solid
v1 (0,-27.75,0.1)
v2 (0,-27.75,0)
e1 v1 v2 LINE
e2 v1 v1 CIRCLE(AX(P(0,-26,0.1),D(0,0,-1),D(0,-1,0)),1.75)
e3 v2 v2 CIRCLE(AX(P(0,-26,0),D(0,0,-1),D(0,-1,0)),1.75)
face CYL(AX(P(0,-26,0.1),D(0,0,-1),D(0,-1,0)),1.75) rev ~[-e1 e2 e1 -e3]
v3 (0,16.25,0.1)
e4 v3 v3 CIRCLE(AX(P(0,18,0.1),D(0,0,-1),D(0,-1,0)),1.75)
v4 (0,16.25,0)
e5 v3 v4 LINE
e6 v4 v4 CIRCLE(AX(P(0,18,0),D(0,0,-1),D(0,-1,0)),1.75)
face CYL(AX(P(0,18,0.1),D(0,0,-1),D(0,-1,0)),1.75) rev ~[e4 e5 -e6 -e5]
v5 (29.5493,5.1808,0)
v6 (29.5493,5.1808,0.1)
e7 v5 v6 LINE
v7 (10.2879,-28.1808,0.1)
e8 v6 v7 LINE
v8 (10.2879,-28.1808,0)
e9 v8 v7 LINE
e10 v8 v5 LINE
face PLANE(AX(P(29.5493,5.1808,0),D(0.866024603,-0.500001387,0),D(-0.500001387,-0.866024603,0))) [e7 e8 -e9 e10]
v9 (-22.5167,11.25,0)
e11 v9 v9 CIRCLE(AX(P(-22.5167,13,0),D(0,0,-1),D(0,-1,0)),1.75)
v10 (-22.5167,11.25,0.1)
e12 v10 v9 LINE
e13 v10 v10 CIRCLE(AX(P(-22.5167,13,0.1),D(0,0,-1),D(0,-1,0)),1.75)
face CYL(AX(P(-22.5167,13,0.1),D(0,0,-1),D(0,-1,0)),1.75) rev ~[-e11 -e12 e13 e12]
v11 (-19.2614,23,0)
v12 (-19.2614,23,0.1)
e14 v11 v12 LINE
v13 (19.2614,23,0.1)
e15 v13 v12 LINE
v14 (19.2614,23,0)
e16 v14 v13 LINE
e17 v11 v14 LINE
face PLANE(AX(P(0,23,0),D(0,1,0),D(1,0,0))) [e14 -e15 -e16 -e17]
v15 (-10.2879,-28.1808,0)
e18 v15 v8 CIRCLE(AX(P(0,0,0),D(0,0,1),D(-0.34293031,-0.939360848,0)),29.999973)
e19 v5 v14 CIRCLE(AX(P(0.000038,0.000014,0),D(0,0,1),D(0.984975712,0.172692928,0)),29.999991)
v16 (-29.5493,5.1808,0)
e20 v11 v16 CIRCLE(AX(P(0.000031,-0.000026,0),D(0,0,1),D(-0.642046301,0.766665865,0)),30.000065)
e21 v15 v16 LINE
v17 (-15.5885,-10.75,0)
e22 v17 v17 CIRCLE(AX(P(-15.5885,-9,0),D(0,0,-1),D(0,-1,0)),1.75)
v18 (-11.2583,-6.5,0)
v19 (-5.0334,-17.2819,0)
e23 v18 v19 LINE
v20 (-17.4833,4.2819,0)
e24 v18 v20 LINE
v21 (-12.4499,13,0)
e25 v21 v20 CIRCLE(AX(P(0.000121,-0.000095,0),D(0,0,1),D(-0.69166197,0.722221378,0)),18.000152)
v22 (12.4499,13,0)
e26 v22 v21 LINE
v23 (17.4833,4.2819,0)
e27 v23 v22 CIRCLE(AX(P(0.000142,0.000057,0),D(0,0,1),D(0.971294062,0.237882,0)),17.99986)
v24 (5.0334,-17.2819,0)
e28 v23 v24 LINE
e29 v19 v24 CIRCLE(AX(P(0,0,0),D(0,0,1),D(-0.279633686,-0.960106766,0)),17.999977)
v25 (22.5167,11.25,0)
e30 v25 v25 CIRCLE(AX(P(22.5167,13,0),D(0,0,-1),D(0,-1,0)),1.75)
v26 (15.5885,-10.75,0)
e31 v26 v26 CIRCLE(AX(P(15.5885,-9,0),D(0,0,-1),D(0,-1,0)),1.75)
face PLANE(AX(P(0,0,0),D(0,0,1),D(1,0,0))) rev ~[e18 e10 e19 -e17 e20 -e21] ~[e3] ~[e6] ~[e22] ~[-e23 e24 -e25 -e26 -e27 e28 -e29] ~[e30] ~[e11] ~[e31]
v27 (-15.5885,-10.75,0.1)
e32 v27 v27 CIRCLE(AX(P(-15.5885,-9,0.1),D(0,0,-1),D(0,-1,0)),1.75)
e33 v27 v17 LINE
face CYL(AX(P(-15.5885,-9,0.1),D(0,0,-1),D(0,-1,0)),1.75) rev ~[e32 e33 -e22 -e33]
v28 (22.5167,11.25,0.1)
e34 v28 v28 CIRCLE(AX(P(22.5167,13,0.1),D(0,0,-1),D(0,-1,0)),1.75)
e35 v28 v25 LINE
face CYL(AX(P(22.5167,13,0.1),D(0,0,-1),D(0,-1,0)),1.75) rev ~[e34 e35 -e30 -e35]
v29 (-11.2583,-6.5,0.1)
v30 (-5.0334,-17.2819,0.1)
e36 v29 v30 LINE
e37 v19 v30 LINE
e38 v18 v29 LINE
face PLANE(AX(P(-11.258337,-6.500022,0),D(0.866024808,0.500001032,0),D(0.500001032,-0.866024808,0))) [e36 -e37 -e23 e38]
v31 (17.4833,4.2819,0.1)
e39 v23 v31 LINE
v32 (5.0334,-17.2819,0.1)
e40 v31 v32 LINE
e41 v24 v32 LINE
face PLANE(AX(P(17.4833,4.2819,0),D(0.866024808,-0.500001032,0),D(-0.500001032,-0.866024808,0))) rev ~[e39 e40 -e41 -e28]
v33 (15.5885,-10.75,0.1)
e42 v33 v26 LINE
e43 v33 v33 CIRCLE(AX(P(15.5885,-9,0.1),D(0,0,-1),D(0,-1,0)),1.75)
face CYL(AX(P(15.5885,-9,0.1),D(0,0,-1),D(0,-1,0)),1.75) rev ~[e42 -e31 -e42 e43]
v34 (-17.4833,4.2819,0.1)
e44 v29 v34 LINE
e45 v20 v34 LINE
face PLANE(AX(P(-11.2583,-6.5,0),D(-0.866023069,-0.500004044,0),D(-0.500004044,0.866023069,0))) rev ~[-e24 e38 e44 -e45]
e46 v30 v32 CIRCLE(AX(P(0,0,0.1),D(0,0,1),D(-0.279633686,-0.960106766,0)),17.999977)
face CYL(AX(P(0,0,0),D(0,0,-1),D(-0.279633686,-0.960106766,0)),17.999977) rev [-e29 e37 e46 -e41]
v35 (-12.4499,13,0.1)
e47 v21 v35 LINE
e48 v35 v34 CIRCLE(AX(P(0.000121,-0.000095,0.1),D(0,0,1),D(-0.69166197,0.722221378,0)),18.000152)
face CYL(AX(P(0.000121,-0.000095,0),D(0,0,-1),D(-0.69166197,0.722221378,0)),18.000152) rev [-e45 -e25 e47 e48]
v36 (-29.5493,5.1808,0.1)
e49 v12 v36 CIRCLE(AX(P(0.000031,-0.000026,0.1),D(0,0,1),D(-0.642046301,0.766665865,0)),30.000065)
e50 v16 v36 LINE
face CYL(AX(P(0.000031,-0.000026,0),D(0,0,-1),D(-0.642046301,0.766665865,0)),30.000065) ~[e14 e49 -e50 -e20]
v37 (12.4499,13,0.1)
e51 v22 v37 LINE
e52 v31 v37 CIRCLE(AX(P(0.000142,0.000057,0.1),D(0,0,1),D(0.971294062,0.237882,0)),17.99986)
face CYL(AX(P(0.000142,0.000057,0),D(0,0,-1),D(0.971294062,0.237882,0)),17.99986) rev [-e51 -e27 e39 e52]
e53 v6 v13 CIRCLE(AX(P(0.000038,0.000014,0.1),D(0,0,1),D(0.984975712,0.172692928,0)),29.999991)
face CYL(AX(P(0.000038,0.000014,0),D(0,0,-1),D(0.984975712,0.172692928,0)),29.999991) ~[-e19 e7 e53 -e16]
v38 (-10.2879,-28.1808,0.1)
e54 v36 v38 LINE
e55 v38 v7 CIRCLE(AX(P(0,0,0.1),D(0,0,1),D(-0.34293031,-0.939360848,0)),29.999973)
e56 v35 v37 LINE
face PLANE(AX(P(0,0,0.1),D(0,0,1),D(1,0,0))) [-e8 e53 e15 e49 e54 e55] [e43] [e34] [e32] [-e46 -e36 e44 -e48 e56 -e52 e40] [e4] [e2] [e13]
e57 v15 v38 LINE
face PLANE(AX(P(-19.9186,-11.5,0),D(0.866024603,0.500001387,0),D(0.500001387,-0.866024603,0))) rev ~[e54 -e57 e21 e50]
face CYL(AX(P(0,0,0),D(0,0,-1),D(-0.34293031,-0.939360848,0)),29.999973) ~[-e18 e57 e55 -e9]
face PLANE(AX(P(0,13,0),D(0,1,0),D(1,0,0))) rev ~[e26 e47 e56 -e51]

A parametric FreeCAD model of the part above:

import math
import FreeCAD as App
import Part
import Sketcher
Q = App.Units.Quantity

doc = App.newDocument("Part")
body = doc.addObject("PartDesign::Body", "Body")

# Sketch on XY plane
sketch1 = body.newObject("Sketcher::SketchObject", "Sketch")
sketch1.AttachmentSupport = (doc.getObject("XY_Plane"), [""])
sketch1.MapMode = "FlatFace"
sketch1.addGeometry([
    Part.LineSegment(App.Vector(10, -28, 0), App.Vector(30, 5, 0)),  # 0
    Part.ArcOfCircle(Part.Circle(App.Vector(0, 0, 0), App.Vector(0, 0, 1), 30), math.radians(10), math.radians(50)),  # 1
    Part.LineSegment(App.Vector(19, 23, 0), App.Vector(-19, 23, 0)),  # 2
    Part.ArcOfCircle(Part.Circle(App.Vector(0, 0, 0), App.Vector(0, 0, 1), 30), math.radians(130), math.radians(170)),  # 3
    Part.LineSegment(App.Vector(-30, 5, 0), App.Vector(-10, -28, 0)),  # 4
    Part.ArcOfCircle(Part.Circle(App.Vector(0, 0, 0), App.Vector(0, 0, 1), 30), math.radians(-110), math.radians(-70)),  # 5
    Part.ArcOfCircle(Part.Circle(App.Vector(0, 0, 0), App.Vector(0, 0, 1), 18), math.radians(14), math.radians(46)),  # 6
    Part.LineSegment(App.Vector(17, 4, 0), App.Vector(5, -17, 0)),  # 7
    Part.ArcOfCircle(Part.Circle(App.Vector(0, 0, 0), App.Vector(0, 0, 1), 18), math.radians(-106), math.radians(-74)),  # 8
    Part.LineSegment(App.Vector(-5, -17, 0), App.Vector(-11, -7, 0)),  # 9
    Part.LineSegment(App.Vector(-11, -6, 0), App.Vector(-17, 4, 0)),  # 10
    Part.ArcOfCircle(Part.Circle(App.Vector(0, 0, 0), App.Vector(0, 0, 1), 18), math.radians(134), math.radians(166)),  # 11
    Part.LineSegment(App.Vector(-12, 13, 0), App.Vector(12, 13, 0)),  # 12
], False)
sketch1.addConstraint([
    Sketcher.Constraint("Coincident", 0, 2, 1, 1),
    Sketcher.Constraint("Coincident", 1, 2, 2, 1),
    Sketcher.Constraint("Coincident", 2, 2, 3, 1),
    Sketcher.Constraint("Coincident", 3, 2, 4, 1),
    Sketcher.Constraint("Coincident", 4, 2, 5, 1),
    Sketcher.Constraint("Coincident", 5, 2, 0, 1),
    Sketcher.Constraint("Coincident", 6, 1, 7, 1),
    Sketcher.Constraint("Coincident", 7, 2, 8, 2),
    Sketcher.Constraint("Coincident", 8, 1, 9, 1),
    Sketcher.Constraint("Coincident", 9, 2, 10, 1),
    Sketcher.Constraint("Coincident", 10, 2, 11, 2),
    Sketcher.Constraint("Coincident", 11, 1, 12, 1),
    Sketcher.Constraint("Coincident", 12, 2, 6, 2),
    Sketcher.Constraint("Horizontal", 2),
    Sketcher.Constraint("Horizontal", 12),
    Sketcher.Constraint("Coincident", 1, 3, -1, 1),
    Sketcher.Constraint("Coincident", 3, 3, -1, 1),
    Sketcher.Constraint("Coincident", 5, 3, -1, 1),
    Sketcher.Constraint("Coincident", 6, 3, -1, 1),
    Sketcher.Constraint("Coincident", 8, 3, -1, 1),
    Sketcher.Constraint("Coincident", 11, 3, -1, 1),
    Sketcher.Constraint("Equal", 1, 3),
    Sketcher.Constraint("Equal", 3, 5),
    Sketcher.Constraint("Equal", 6, 8),
    Sketcher.Constraint("Equal", 8, 11),
    Sketcher.Constraint("Parallel", 0, 7),
    Sketcher.Constraint("Parallel", 4, 9),
    Sketcher.Constraint("Parallel", 9, 10),
    Sketcher.Constraint("Horizontal", 0, 2, 3, 2),
    Sketcher.Constraint("Horizontal", 4, 2, 5, 2),
    Sketcher.Constraint("Horizontal", 7, 2, 8, 1),
    Sketcher.Constraint("Equal", 9, 10),
    Sketcher.Constraint("DistanceY", -1, 1, 1, 2, 23.0),
    Sketcher.Constraint("Radius", 1, 30.0),
    Sketcher.Constraint("Radius", 6, 18.0),
    Sketcher.Constraint("Angle", 0, Q("60 deg")),
    Sketcher.Constraint("DistanceY", -1, 1, 11, 1, 13.0),
    Sketcher.Constraint("DistanceY", 9, 2, -1, 1, 6.5),
    Sketcher.Constraint("DistanceX", 4, 2, -1, 1, 10.288),
])
pad1 = body.newObject("PartDesign::Pad", "Pad")
pad1.Profile = sketch1
pad1.Length = 0.1

# Sketch on XY plane
sketch2 = body.newObject("Sketcher::SketchObject", "Sketch001")
sketch2.AttachmentSupport = (doc.getObject("XY_Plane"), [""])
sketch2.MapMode = "FlatFace"
sketch2.AttachmentOffset = App.Placement(App.Vector(0, 0, 0.1), App.Rotation())
sketch2.addGeometry([
    Part.Circle(App.Vector(0, 18, 0), App.Vector(0, 0, 1), 1.8),  # 0
    Part.Circle(App.Vector(-15.6, -9, 0), App.Vector(0, 0, 1), 1.8),  # 1
    Part.Circle(App.Vector(15.6, -9, 0), App.Vector(0, 0, 1), 1.8),  # 2
    Part.Circle(App.Vector(0, -26, 0), App.Vector(0, 0, 1), 1.8),  # 3
    Part.Circle(App.Vector(22.5, 13, 0), App.Vector(0, 0, 1), 1.8),  # 4
    Part.Circle(App.Vector(-22.5, 13, 0), App.Vector(0, 0, 1), 1.8),  # 5
], False)
sketch2.addConstraint([
    Sketcher.Constraint("Equal", 0, 1),
    Sketcher.Constraint("Equal", 1, 2),
    Sketcher.Constraint("Equal", 2, 3),
    Sketcher.Constraint("Equal", 3, 4),
    Sketcher.Constraint("Equal", 4, 5),
    Sketcher.Constraint("Symmetric", 1, 3, 2, 3, -2),
    Sketcher.Constraint("Symmetric", 4, 3, 5, 3, -2),
    Sketcher.Constraint("PointOnObject", 0, 3, -2),
    Sketcher.Constraint("PointOnObject", 3, 3, -2),
    Sketcher.Constraint("Diameter", 0, 3.5),
    Sketcher.Constraint("DistanceY", -1, 1, 0, 3, 18.0),
    Sketcher.Constraint("DistanceY", 1, 3, -1, 1, 9.0),
    Sketcher.Constraint("DistanceY", 3, 3, -1, 1, 26.0),
    Sketcher.Constraint("DistanceY", -1, 1, 4, 3, 13.0),
    Sketcher.Constraint("DistanceX", 1, 3, 2, 3, 31.177),
    Sketcher.Constraint("DistanceX", -1, 1, 4, 3, 22.5167),
])
doc.recompute()
hole = body.newObject("PartDesign::Hole", "Hole")
hole.Profile = sketch2
hole.ThreadType = "None"
hole.Diameter = 3.5
hole.DepthType = "ThroughAll"

doc.recompute()
